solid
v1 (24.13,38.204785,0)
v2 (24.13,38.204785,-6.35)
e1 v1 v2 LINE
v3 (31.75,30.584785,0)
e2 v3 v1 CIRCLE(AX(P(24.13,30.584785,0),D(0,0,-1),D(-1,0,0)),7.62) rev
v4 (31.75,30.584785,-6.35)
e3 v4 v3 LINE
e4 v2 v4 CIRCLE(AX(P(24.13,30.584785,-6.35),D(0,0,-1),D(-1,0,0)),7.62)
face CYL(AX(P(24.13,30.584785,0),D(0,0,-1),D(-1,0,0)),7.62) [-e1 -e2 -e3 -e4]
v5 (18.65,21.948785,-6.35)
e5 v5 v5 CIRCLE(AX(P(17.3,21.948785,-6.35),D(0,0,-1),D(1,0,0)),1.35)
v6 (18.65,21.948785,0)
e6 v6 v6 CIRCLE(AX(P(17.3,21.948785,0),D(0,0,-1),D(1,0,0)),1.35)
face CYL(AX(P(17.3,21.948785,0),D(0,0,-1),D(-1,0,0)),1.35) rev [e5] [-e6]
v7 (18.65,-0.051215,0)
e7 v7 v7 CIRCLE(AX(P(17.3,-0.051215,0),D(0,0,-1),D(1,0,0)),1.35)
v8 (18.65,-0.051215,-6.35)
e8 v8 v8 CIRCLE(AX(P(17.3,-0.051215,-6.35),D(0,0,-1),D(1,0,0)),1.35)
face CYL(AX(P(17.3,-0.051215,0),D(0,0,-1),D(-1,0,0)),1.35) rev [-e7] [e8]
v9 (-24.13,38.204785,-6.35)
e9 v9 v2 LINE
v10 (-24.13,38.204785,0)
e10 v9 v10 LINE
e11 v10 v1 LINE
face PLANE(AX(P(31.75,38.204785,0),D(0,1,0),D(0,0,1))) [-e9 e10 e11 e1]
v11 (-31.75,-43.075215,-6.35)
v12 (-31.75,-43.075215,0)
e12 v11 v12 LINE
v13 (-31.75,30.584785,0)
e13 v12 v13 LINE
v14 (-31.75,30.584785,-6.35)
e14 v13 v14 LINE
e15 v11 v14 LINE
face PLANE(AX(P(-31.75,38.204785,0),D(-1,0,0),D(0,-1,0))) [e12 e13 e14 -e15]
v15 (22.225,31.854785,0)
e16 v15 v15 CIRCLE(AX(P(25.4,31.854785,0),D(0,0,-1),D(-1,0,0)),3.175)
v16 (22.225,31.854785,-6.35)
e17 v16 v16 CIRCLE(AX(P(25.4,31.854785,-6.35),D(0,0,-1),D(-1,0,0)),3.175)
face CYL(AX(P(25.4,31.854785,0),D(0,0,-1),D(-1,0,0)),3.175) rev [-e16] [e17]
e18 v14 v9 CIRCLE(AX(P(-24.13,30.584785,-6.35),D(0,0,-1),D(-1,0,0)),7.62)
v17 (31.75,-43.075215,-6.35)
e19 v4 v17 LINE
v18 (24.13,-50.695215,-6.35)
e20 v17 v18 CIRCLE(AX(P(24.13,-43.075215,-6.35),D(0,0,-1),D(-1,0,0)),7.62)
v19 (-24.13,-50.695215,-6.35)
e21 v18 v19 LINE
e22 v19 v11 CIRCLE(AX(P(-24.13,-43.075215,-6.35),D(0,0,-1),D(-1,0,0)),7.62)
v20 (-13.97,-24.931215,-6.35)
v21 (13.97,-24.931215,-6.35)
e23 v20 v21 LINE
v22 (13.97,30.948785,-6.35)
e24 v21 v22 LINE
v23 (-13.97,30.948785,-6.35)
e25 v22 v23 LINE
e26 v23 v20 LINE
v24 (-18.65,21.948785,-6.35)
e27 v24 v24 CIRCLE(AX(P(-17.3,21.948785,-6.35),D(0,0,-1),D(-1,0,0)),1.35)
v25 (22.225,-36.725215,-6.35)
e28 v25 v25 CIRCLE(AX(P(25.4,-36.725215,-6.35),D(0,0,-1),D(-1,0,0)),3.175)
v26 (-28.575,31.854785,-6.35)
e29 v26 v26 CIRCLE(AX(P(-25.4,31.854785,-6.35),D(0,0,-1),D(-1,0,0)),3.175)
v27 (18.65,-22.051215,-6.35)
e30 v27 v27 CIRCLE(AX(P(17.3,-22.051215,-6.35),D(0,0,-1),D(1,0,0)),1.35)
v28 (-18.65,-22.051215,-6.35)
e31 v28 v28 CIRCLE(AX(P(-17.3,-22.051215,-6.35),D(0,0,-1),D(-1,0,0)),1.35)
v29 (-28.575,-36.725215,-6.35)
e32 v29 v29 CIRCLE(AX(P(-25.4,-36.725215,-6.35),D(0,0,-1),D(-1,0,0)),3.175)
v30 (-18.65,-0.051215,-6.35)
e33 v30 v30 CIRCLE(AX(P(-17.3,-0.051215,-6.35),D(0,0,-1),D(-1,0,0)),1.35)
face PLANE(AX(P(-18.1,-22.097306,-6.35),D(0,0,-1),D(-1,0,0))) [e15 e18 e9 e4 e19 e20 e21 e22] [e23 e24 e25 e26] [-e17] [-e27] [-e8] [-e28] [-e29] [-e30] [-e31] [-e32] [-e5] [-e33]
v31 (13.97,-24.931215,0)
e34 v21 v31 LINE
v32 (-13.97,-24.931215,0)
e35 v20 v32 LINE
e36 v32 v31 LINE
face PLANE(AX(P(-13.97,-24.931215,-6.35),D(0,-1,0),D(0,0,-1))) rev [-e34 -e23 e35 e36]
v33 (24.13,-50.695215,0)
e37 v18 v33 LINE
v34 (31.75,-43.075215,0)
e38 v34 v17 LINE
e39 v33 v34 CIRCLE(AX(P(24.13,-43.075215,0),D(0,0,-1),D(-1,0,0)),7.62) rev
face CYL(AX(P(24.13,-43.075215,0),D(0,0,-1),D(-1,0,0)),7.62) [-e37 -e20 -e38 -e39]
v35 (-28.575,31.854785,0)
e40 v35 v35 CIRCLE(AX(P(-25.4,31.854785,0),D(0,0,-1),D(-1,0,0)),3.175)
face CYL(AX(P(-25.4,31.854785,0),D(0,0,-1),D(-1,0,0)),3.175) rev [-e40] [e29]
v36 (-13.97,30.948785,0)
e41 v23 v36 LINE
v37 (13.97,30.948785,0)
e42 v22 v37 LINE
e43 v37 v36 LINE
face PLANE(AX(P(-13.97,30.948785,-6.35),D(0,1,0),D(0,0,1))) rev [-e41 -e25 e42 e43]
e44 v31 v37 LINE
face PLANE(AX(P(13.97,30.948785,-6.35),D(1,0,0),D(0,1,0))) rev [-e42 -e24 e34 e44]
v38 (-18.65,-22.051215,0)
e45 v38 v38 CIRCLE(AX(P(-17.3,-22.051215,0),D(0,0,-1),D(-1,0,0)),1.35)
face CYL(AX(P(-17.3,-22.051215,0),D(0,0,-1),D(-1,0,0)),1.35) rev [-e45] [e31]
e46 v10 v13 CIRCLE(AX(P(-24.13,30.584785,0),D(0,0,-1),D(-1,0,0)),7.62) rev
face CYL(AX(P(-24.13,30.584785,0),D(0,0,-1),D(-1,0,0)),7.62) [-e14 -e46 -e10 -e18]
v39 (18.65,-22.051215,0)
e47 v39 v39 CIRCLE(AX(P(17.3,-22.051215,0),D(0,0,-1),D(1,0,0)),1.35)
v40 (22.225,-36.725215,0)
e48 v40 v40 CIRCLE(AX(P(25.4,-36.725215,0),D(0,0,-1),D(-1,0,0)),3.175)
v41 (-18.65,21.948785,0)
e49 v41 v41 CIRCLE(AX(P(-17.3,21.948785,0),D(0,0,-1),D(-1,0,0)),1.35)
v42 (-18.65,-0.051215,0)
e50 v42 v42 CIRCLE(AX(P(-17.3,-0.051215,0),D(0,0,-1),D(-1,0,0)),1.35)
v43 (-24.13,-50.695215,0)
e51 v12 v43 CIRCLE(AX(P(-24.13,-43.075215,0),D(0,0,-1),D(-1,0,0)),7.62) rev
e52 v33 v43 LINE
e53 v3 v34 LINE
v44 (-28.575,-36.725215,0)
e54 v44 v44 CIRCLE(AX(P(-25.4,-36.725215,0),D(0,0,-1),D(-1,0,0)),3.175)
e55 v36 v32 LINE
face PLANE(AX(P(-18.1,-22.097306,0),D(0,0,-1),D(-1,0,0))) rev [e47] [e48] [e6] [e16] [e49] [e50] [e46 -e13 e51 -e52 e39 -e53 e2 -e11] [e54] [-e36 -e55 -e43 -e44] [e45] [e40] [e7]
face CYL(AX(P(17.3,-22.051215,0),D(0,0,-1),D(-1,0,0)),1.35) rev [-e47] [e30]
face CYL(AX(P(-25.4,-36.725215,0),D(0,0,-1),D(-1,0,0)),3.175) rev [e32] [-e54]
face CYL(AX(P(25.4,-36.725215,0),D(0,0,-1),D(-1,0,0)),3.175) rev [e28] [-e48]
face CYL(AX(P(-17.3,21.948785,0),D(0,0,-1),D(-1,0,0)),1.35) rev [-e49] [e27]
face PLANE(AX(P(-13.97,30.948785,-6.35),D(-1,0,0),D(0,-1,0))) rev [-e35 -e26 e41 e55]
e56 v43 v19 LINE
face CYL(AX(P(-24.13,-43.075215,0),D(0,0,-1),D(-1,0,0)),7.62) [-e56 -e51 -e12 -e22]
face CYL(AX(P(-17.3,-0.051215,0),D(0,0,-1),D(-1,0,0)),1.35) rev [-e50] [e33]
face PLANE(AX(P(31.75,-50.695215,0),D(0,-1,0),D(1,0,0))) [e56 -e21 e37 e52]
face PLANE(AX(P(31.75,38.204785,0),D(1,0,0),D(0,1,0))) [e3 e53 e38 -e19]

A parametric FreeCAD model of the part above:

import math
import FreeCAD as App
import Part
import Sketcher
Q = App.Units.Quantity


def edges_at(feature, points):
    """Names of the edges that pass closest to the given points."""
    edges = feature.Shape.Edges
    near = lambda p: min(range(len(edges)), key=lambda i: edges[i].distToShape(Part.Vertex(*p))[0])
    return sorted({f"Edge{near(p) + 1}" for p in points})


def add_polygon(sketch, points):
    """Adds a closed chain of lines whose ends are joined by coincident constraints."""
    first, n = sketch.GeometryCount, len(points)
    for a, b in zip(points, points[1:] + points[:1]):
        sketch.addGeometry(Part.LineSegment(App.Vector(*a, 0), App.Vector(*b, 0)), False)
    for i in range(n):
        sketch.addConstraint(Sketcher.Constraint("Coincident", first + i, 2, first + (i + 1) % n, 1))

doc = App.newDocument("Part")
body = doc.addObject("PartDesign::Body", "Body")

# Sketch on XY plane
sketch1 = body.newObject("Sketcher::SketchObject", "Sketch")
sketch1.AttachmentSupport = (doc.getObject("XY_Plane"), [""])
sketch1.MapMode = "FlatFace"
sketch1.addGeometry(Part.LineSegment(App.Vector(-14.9, 29.8, 0), App.Vector(-19.7, 23.3, 0)), False)
sketch1.addGeometry(Part.ArcOfCircle(Part.Circle(App.Vector(-18.1, 22.1, 0), App.Vector(0, 0, 1), 2), math.radians(143), math.radians(180)), False)
sketch1.addGeometry(Part.LineSegment(App.Vector(-20.1, 22.1, 0), App.Vector(-20.1, -22.1, 0)), False)
sketch1.addGeometry(Part.ArcOfCircle(Part.Circle(App.Vector(-18.1, -22.1, 0), App.Vector(0, 0, 1), 2), math.radians(-180), math.radians(-143)), False)
sketch1.addGeometry(Part.LineSegment(App.Vector(-19.7, -23.3, 0), App.Vector(-14.9, -29.8, 0)), False)
sketch1.addGeometry(Part.ArcOfCircle(Part.Circle(App.Vector(-13.3, -28.5, 0), App.Vector(0, 0, 1), 2), math.radians(-143), math.radians(-90)), False)
sketch1.addGeometry(Part.LineSegment(App.Vector(-13.3, -30.6, 0), App.Vector(13.3, -30.6, 0)), False)
sketch1.addGeometry(Part.ArcOfCircle(Part.Circle(App.Vector(13.3, -28.5, 0), App.Vector(0, 0, 1), 2), math.radians(-90), math.radians(-37)), False)
sketch1.addGeometry(Part.LineSegment(App.Vector(14.9, -29.8, 0), App.Vector(19.7, -23.3, 0)), False)
sketch1.addGeometry(Part.ArcOfCircle(Part.Circle(App.Vector(18.1, -22.1, 0), App.Vector(0, 0, 1), 2), math.radians(-37), math.radians(0)), False)
sketch1.addGeometry(Part.LineSegment(App.Vector(20.1, -22.1, 0), App.Vector(20.1, 22.1, 0)), False)
sketch1.addGeometry(Part.ArcOfCircle(Part.Circle(App.Vector(18.1, 22.1, 0), App.Vector(0, 0, 1), 2), math.radians(0), math.radians(37)), False)
sketch1.addGeometry(Part.LineSegment(App.Vector(19.7, 23.3, 0), App.Vector(14.9, 29.8, 0)), False)
sketch1.addGeometry(Part.ArcOfCircle(Part.Circle(App.Vector(13.3, 28.5, 0), App.Vector(0, 0, 1), 2), math.radians(37), math.radians(90)), False)
sketch1.addGeometry(Part.LineSegment(App.Vector(13.3, 30.6, 0), App.Vector(-13.3, 30.6, 0)), False)
sketch1.addGeometry(Part.ArcOfCircle(Part.Circle(App.Vector(-13.3, 28.5, 0), App.Vector(0, 0, 1), 2), math.radians(90), math.radians(143)), False)
sketch1.addConstraint(Sketcher.Constraint("Tangent", 0, 2, 1, 1))
sketch1.addConstraint(Sketcher.Constraint("Tangent", 1, 2, 2, 1))
sketch1.addConstraint(Sketcher.Constraint("Tangent", 2, 2, 3, 1))
sketch1.addConstraint(Sketcher.Constraint("Tangent", 3, 2, 4, 1))
sketch1.addConstraint(Sketcher.Constraint("Tangent", 4, 2, 5, 1))
sketch1.addConstraint(Sketcher.Constraint("Tangent", 5, 2, 6, 1))
sketch1.addConstraint(Sketcher.Constraint("Tangent", 6, 2, 7, 1))
sketch1.addConstraint(Sketcher.Constraint("Tangent", 7, 2, 8, 1))
sketch1.addConstraint(Sketcher.Constraint("Tangent", 8, 2, 9, 1))
sketch1.addConstraint(Sketcher.Constraint("Tangent", 9, 2, 10, 1))
sketch1.addConstraint(Sketcher.Constraint("Tangent", 10, 2, 11, 1))
sketch1.addConstraint(Sketcher.Constraint("Tangent", 11, 2, 12, 1))
sketch1.addConstraint(Sketcher.Constraint("Tangent", 12, 2, 13, 1))
sketch1.addConstraint(Sketcher.Constraint("Tangent", 13, 2, 14, 1))
sketch1.addConstraint(Sketcher.Constraint("Tangent", 14, 2, 15, 1))
sketch1.addConstraint(Sketcher.Constraint("Tangent", 15, 2, 0, 1))
sketch1.addConstraint(Sketcher.Constraint("Vertical", 2))
sketch1.addConstraint(Sketcher.Constraint("Horizontal", 6))
sketch1.addConstraint(Sketcher.Constraint("Vertical", 10))
sketch1.addConstraint(Sketcher.Constraint("Horizontal", 14))
sketch1.addConstraint(Sketcher.Constraint("Equal", 1, 3))
sketch1.addConstraint(Sketcher.Constraint("Equal", 3, 5))
sketch1.addConstraint(Sketcher.Constraint("Equal", 5, 7))
sketch1.addConstraint(Sketcher.Constraint("Equal", 7, 9))
sketch1.addConstraint(Sketcher.Constraint("Equal", 9, 11))
sketch1.addConstraint(Sketcher.Constraint("Equal", 11, 13))
sketch1.addConstraint(Sketcher.Constraint("Equal", 13, 15))
sketch1.addConstraint(Sketcher.Constraint("Symmetric", 1, 3, 9, 3, -1, 1))
sketch1.addConstraint(Sketcher.Constraint("Symmetric", 5, 3, 13, 3, -1, 1))
sketch1.addConstraint(Sketcher.Constraint("Symmetric", 4, 2, 7, 2, -2))
sketch1.addConstraint(Sketcher.Constraint("Symmetric", 0, 2, 11, 2, -2))
sketch1.addConstraint(Sketcher.Constraint("Radius", 1, 2.0))
sketch1.addConstraint(Sketcher.Constraint("DistanceX", 6, 1, 6, 2, 26.50231))
sketch1.addConstraint(Sketcher.Constraint("DistanceX", 1, 3, -1, 1, 18.1))
sketch1.addConstraint(Sketcher.Constraint("DistanceY", 5, 3, -1, 1, 28.55))
sketch1.addConstraint(Sketcher.Constraint("DistanceX", 4, 2, 7, 3, 28.1012))
pad1 = body.newObject("PartDesign::Pad", "Pad")
pad1.Profile = sketch1
pad1.Length = Q("0.25 in")
pad1.Reversed = True

# Sketch on XY plane
sketch2 = body.newObject("Sketcher::SketchObject", "Sketch001")
sketch2.AttachmentSupport = (doc.getObject("XY_Plane"), [""])
sketch2.MapMode = "FlatFace"
sketch2.AttachmentOffset = App.Placement(App.Vector(0, 0, -0.25 * 25.4), App.Rotation())
sketch2.addGeometry(Part.Circle(App.Vector(-17.3, 21.9, 0), App.Vector(0, 0, 1), 1.4), False)
sketch2.addGeometry(Part.Circle(App.Vector(-17.3, -0.1, 0), App.Vector(0, 0, 1), 1.4), False)
sketch2.addGeometry(Part.Circle(App.Vector(-17.3, -22.1, 0), App.Vector(0, 0, 1), 1.4), False)
sketch2.addGeometry(Part.Circle(App.Vector(-11, -27.8, 0), App.Vector(0, 0, 1), 1.4), False)
sketch2.addGeometry(Part.Circle(App.Vector(11, -27.8, 0), App.Vector(0, 0, 1), 1.4), False)
sketch2.addGeometry(Part.Circle(App.Vector(17.3, -22.1, 0), App.Vector(0, 0, 1), 1.4), False)
sketch2.addGeometry(Part.Circle(App.Vector(17.3, -0.1, 0), App.Vector(0, 0, 1), 1.4), False)
sketch2.addGeometry(Part.Circle(App.Vector(17.3, 21.9, 0), App.Vector(0, 0, 1), 1.4), False)
sketch2.addConstraint(Sketcher.Constraint("Equal", 0, 1))
sketch2.addConstraint(Sketcher.Constraint("Equal", 1, 2))
sketch2.addConstraint(Sketcher.Constraint("Equal", 3, 4))
sketch2.addConstraint(Sketcher.Constraint("Equal", 2, 5))
sketch2.addConstraint(Sketcher.Constraint("Equal", 5, 6))
sketch2.addConstraint(Sketcher.Constraint("Equal", 6, 7))
sketch2.addConstraint(Sketcher.Constraint("Symmetric", 3, 3, 4, 3, -2))
sketch2.addConstraint(Sketcher.Constraint("Symmetric", 2, 3, 5, 3, -2))
sketch2.addConstraint(Sketcher.Constraint("Symmetric", 1, 3, 6, 3, -2))
sketch2.addConstraint(Sketcher.Constraint("Symmetric", 0, 3, 7, 3, -2))
sketch2.addConstraint(Sketcher.Constraint("Vertical", 0, 3, 1, 3))
sketch2.addConstraint(Sketcher.Constraint("Vertical", 1, 3, 2, 3))
sketch2.addConstraint(Sketcher.Constraint("Diameter", 0, 2.7))
sketch2.addConstraint(Sketcher.Constraint("Diameter", 3, 2.77))
sketch2.addConstraint(Sketcher.Constraint("DistanceX", 0, 3, -1, 1, 17.3))
sketch2.addConstraint(Sketcher.Constraint("DistanceX", 3, 3, -1, 1, 11.0))
sketch2.addConstraint(Sketcher.Constraint("DistanceY", 3, 3, -1, 1, 27.75))
sketch2.addConstraint(Sketcher.Constraint("DistanceY", 1, 3, 0, 3, 22.0))
sketch2.addConstraint(Sketcher.Constraint("DistanceY", 2, 3, 1, 3, 22.0))
sketch2.addConstraint(Sketcher.Constraint("DistanceY", -1, 1, 0, 3, 21.948784))
pocket1 = body.newObject("PartDesign::Pocket", "Pocket")
pocket1.Profile = sketch2
pocket1.Type = "ThroughAll"
pocket1.Reversed = True

# Sketch on XY plane
sketch3 = body.newObject("Sketcher::SketchObject", "Sketch002")
sketch3.AttachmentSupport = (doc.getObject("XY_Plane"), [""])
sketch3.MapMode = "FlatFace"
sketch3.AttachmentOffset = App.Placement(App.Vector(0, 0, -0.25 * 25.4), App.Rotation())
add_polygon(sketch3, [(32, 38), (32, -51), (-32, -51), (-32, 38)])  # lines 0-3
add_polygon(sketch3, [(-19, -24), (19, -24), (19, 24), (-19, 24)])  # lines 4-7
sketch3.addConstraint(Sketcher.Constraint("Vertical", 0))
sketch3.addConstraint(Sketcher.Constraint("Horizontal", 1))
sketch3.addConstraint(Sketcher.Constraint("Vertical", 2))
sketch3.addConstraint(Sketcher.Constraint("Horizontal", 3))
sketch3.addConstraint(Sketcher.Constraint("Horizontal", 4))
sketch3.addConstraint(Sketcher.Constraint("Vertical", 5))
sketch3.addConstraint(Sketcher.Constraint("Horizontal", 6))
sketch3.addConstraint(Sketcher.Constraint("Vertical", 7))
sketch3.addConstraint(Sketcher.Constraint("Symmetric", 4, 2, 6, 2, -1, 1))
sketch3.addConstraint(Sketcher.Constraint("DistanceX", 1, 2, 1, 1, Q("2.5 in")))
sketch3.addConstraint(Sketcher.Constraint("DistanceY", 0, 2, 0, 1, Q("3.5 in")))
sketch3.addConstraint(Sketcher.Constraint("DistanceX", -1, 1, 0, 2, Q("1.25 in")))
sketch3.addConstraint(Sketcher.Constraint("DistanceY", 5, 1, 5, 2, 47.23754))
sketch3.addConstraint(Sketcher.Constraint("DistanceX", 4, 1, 4, 2, 38.321076))
sketch3.addConstraint(Sketcher.Constraint("DistanceY", 0, 2, -1, 1, 50.695216))
pad2 = body.newObject("PartDesign::Pad", "Pad001")
pad2.Profile = sketch3
pad2.Length = Q("0.25 in")

# Sketch on XY plane
sketch4 = body.newObject("Sketcher::SketchObject", "Sketch003")
sketch4.AttachmentSupport = (doc.getObject("XY_Plane"), [""])
sketch4.MapMode = "FlatFace"
add_polygon(sketch4, [(-14, 31), (-14, -25), (14, -25), (14, 31)])  # lines 0-3
sketch4.addConstraint(Sketcher.Constraint("Vertical", 0))
sketch4.addConstraint(Sketcher.Constraint("Horizontal", 1))
sketch4.addConstraint(Sketcher.Constraint("Vertical", 2))
sketch4.addConstraint(Sketcher.Constraint("Horizontal", 3))
sketch4.addConstraint(Sketcher.Constraint("DistanceX", 1, 1, 1, 2, Q("1.1 in")))
sketch4.addConstraint(Sketcher.Constraint("DistanceY", 0, 2, 0, 1, Q("2.2 in")))
sketch4.addConstraint(Sketcher.Constraint("DistanceX", 0, 2, -1, 1, Q("0.55 in")))
sketch4.addConstraint(Sketcher.Constraint("DistanceY", 0, 2, -1, 1, 24.931216))
pocket2 = body.newObject("PartDesign::Pocket", "Pocket001")
pocket2.Profile = sketch4
pocket2.Type = "ThroughAll"

# Sketch on XY plane
sketch5 = body.newObject("Sketcher::SketchObject", "Sketch004")
sketch5.AttachmentSupport = (doc.getObject("XY_Plane"), [""])
sketch5.MapMode = "FlatFace"
sketch5.AttachmentOffset = App.Placement(App.Vector(0, 0, -0.25 * 25.4), App.Rotation())
sketch5.addGeometry(Part.Circle(App.Vector(-25.4, 31.9, 0), App.Vector(0, 0, 1), 3.2), False)
sketch5.addGeometry(Part.Circle(App.Vector(25.4, 31.9, 0), App.Vector(0, 0, 1), 3.2), False)
sketch5.addGeometry(Part.Circle(App.Vector(25.4, -36.7, 0), App.Vector(0, 0, 1), 3.2), False)
sketch5.addGeometry(Part.Circle(App.Vector(-25.4, -36.7, 0), App.Vector(0, 0, 1), 3.2), False)
sketch5.addConstraint(Sketcher.Constraint("Equal", 0, 1))
sketch5.addConstraint(Sketcher.Constraint("Equal", 1, 2))
sketch5.addConstraint(Sketcher.Constraint("Equal", 2, 3))
sketch5.addConstraint(Sketcher.Constraint("Symmetric", 0, 3, 1, 3, -2))
sketch5.addConstraint(Sketcher.Constraint("Symmetric", 2, 3, 3, 3, -2))
sketch5.addConstraint(Sketcher.Constraint("Vertical", 1, 3, 2, 3))
sketch5.addConstraint(Sketcher.Constraint("Diameter", 0, Q("0.25 in")))
sketch5.addConstraint(Sketcher.Constraint("DistanceX", 0, 3, -1, 1, Q("1 in")))
sketch5.addConstraint(Sketcher.Constraint("DistanceY", 2, 3, 1, 3, Q("2.7 in")))
sketch5.addConstraint(Sketcher.Constraint("DistanceY", -1, 1, 0, 3, 31.854785))
pocket3 = body.newObject("PartDesign::Pocket", "Pocket002")
pocket3.Profile = sketch5
pocket3.Type = "ThroughAll"
pocket3.Reversed = True
doc.recompute()

fillet = body.newObject("PartDesign::Fillet", "Fillet")
fillet.Base = (pocket3, edges_at(pocket3, [
    (-31.75, 38.205, -3.175),
    (-31.75, -50.695, -3.175),
    (31.75, -50.695, -3.175),
    (31.75, 38.205, -3.175),
]))
fillet.Radius = Q("0.3 in")

doc.recompute()
